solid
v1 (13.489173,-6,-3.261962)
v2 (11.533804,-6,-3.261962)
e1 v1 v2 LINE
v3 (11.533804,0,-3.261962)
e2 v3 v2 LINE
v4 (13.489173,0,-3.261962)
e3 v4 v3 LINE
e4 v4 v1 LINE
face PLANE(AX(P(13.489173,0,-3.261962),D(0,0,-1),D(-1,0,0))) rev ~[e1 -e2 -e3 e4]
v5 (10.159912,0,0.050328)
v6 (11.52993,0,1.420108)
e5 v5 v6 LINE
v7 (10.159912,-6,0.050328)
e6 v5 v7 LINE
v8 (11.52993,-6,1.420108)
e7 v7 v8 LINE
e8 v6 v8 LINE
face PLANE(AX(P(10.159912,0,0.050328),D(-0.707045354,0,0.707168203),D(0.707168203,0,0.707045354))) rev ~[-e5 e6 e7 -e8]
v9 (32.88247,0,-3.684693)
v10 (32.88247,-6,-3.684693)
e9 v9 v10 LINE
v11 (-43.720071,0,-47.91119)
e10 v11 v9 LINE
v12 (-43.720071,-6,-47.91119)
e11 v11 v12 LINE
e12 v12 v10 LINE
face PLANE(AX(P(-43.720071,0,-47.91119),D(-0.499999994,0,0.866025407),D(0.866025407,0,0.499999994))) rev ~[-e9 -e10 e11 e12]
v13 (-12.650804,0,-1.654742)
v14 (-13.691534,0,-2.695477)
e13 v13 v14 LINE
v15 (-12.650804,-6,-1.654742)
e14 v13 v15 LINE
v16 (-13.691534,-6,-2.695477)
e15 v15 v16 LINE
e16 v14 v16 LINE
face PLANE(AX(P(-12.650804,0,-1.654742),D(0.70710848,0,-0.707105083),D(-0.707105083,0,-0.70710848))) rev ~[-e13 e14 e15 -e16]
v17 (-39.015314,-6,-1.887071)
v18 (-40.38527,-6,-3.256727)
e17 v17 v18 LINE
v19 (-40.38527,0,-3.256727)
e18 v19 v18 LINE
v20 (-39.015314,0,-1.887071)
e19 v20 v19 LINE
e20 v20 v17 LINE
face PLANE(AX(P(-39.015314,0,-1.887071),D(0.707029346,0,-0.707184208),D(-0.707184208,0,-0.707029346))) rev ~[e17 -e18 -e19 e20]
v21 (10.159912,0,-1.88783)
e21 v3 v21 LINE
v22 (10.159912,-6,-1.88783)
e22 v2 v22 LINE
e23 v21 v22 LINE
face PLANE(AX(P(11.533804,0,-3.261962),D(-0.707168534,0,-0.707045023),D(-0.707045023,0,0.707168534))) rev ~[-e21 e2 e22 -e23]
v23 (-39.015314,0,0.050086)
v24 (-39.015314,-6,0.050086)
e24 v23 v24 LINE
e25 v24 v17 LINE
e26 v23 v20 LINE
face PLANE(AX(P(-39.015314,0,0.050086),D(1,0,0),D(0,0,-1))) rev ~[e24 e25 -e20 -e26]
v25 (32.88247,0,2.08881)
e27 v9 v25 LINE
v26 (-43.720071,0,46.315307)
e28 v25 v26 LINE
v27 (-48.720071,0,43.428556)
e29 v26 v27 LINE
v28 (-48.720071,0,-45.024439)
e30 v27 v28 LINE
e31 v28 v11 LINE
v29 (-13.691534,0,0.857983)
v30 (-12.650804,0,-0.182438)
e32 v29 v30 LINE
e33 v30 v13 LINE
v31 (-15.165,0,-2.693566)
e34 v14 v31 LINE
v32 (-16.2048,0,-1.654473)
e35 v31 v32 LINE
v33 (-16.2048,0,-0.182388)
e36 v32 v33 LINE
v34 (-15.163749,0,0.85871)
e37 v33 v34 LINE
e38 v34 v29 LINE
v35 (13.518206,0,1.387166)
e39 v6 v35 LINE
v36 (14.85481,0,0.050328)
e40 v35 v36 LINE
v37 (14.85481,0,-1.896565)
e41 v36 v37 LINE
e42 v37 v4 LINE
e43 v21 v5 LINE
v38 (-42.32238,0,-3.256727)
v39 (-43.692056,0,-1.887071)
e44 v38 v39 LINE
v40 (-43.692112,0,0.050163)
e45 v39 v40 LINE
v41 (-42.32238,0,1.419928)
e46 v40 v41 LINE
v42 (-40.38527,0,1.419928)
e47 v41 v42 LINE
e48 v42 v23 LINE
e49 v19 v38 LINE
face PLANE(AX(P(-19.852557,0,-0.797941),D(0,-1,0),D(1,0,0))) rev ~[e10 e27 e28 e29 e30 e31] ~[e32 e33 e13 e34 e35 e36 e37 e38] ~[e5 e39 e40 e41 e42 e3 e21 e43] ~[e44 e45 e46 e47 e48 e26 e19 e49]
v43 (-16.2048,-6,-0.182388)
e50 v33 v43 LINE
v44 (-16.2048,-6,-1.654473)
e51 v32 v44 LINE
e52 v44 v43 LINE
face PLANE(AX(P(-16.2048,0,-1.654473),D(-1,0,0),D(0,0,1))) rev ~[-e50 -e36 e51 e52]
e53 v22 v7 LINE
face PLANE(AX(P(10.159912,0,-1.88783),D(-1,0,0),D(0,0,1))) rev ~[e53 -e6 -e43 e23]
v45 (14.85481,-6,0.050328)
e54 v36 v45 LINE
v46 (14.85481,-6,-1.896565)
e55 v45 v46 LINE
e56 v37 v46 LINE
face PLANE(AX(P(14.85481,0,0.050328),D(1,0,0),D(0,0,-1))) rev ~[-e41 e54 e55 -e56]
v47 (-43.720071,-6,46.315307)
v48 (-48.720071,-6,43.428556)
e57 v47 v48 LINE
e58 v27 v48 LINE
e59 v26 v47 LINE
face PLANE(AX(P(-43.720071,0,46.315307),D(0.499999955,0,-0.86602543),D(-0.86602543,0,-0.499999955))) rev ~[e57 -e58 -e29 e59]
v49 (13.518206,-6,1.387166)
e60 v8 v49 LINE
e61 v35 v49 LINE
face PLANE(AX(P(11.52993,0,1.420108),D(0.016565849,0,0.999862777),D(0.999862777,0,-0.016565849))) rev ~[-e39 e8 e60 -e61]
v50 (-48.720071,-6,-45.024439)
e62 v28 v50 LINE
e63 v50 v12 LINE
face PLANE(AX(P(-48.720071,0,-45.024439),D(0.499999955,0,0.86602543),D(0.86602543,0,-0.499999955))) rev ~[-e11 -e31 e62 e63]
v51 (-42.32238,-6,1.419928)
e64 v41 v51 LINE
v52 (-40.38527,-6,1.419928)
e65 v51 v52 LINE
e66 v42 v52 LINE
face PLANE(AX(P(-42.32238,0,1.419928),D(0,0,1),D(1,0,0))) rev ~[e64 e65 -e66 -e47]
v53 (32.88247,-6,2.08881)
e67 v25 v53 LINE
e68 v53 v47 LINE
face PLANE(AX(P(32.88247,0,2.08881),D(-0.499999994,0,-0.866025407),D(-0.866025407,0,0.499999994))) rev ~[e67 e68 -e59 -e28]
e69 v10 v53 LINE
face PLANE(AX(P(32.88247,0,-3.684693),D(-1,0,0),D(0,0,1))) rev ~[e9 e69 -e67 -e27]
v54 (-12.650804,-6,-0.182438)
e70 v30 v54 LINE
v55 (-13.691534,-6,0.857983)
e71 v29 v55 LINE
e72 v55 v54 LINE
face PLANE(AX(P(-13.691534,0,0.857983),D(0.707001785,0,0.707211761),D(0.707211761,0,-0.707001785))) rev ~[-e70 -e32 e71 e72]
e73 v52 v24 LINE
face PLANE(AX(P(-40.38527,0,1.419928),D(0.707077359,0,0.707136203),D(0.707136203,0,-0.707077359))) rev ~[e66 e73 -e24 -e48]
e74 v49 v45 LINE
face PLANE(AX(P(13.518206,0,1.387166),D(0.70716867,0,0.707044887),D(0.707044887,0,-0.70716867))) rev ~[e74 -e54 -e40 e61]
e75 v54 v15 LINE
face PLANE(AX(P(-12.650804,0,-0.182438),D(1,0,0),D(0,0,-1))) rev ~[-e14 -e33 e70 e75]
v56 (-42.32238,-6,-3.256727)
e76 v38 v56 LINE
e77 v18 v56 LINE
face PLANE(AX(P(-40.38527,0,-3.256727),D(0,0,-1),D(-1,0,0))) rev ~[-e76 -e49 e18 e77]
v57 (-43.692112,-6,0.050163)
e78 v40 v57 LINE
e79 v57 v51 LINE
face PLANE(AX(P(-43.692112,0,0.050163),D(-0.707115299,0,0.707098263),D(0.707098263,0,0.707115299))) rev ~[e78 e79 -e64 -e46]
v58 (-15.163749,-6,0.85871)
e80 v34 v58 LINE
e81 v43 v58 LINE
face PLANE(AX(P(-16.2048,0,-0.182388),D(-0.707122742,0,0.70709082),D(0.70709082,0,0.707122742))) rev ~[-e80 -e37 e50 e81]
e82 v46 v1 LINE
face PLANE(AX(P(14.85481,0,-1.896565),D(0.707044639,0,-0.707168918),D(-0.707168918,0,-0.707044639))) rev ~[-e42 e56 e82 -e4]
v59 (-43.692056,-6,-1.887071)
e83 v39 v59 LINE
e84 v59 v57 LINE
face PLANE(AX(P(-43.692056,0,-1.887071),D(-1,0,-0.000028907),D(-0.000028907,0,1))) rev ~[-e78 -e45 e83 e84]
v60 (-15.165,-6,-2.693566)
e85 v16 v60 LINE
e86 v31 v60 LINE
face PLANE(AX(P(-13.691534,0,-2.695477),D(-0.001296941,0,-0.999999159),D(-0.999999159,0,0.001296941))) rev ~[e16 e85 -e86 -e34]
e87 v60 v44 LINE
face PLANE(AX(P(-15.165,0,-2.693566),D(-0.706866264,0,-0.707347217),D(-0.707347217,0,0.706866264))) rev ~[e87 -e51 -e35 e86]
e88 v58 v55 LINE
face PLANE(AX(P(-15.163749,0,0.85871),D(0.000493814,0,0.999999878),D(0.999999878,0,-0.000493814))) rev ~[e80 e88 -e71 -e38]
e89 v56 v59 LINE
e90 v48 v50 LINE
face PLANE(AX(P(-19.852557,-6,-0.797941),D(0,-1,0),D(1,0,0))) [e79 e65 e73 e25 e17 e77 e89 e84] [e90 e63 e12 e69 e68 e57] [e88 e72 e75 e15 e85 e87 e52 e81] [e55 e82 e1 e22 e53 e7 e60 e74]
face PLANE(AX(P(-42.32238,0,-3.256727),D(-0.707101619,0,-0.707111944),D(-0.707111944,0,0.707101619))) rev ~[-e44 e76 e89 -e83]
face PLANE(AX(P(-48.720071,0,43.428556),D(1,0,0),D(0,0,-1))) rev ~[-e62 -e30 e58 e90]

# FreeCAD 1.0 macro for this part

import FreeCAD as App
import Part
import Sketcher

V = App.Vector


def add_polygon(sketch, points):
    """Adds a closed chain of lines whose ends are joined by coincident constraints."""
    first, n = sketch.GeometryCount, len(points)
    for a, b in zip(points, points[1:] + points[:1]):
        sketch.addGeometry(Part.LineSegment(App.Vector(*a, 0), App.Vector(*b, 0)), False)
    for i in range(n):
        sketch.addConstraint(Sketcher.Constraint("Coincident", first + i, 2, first + (i + 1) % n, 1))

doc = App.newDocument("Part")
body = doc.addObject("PartDesign::Body", "Body")

# Sketch on XZ plane
sketch1 = body.newObject("Sketcher::SketchObject", "Sketch")
sketch1.AttachmentSupport = (doc.getObject("XZ_Plane"), [""])
sketch1.MapMode = "FlatFace"
add_polygon(sketch1, [(-48.720071, -45.024439), (-43.720071, -47.91119), (32.88247, -3.684693), (32.88247, 2.08881), (-43.720071, 46.315307), (-48.720071, 43.428556)])  # lines 0-5
add_polygon(sketch1, [(-42.32238, -3.256727), (-43.692056, -1.887071), (-43.692112, 0.050163), (-42.32238, 1.419928), (-40.38527, 1.419928), (-39.015314, 0.050086), (-39.015314, -1.887071), (-40.38527, -3.256727)])  # lines 6-13
add_polygon(sketch1, [(-15.165, -2.693566), (-16.2048, -1.654473), (-16.2048, -0.182388), (-15.163749, 0.85871), (-13.691534, 0.857983), (-12.650804, -0.182438), (-12.650804, -1.654742), (-13.691534, -2.695477)])  # lines 14-21
add_polygon(sketch1, [(10.159912, -1.88783), (10.159912, 0.050328), (11.52993, 1.420108), (13.518206, 1.387166), (14.85481, 0.050328), (14.85481, -1.896565), (13.489173, -3.261962), (11.533804, -3.261962)])  # lines 22-29
sketch1.addConstraint(Sketcher.Constraint("Vertical", 2))
sketch1.addConstraint(Sketcher.Constraint("Vertical", 5))
sketch1.addConstraint(Sketcher.Constraint("Horizontal", 9))
sketch1.addConstraint(Sketcher.Constraint("Vertical", 11))
sketch1.addConstraint(Sketcher.Constraint("Horizontal", 13))
sketch1.addConstraint(Sketcher.Constraint("Vertical", 15))
sketch1.addConstraint(Sketcher.Constraint("Vertical", 19))
sketch1.addConstraint(Sketcher.Constraint("Vertical", 22))
sketch1.addConstraint(Sketcher.Constraint("Vertical", 26))
sketch1.addConstraint(Sketcher.Constraint("Horizontal", 28))
sketch1.addConstraint(Sketcher.Constraint("DistanceY", 0, 2, 2, 2, 50.0))
sketch1.addConstraint(Sketcher.Constraint("DistanceY", 1, 2, 3, 2, 50.0))
sketch1.addConstraint(Sketcher.Constraint("DistanceX", 4, 2, 3, 2, 5.0))
sketch1.addConstraint(Sketcher.Constraint("DistanceX", 4, 2, 0, 2, 5.0))
sketch1.addConstraint(Sketcher.Constraint("Distance", 14, 1.469999))
sketch1.addConstraint(Sketcher.Constraint("Distance", 6, 1.937))
sketch1.addConstraint(Sketcher.Constraint("DistanceX", 21, 2, -1, 1, 15.165))
sketch1.addConstraint(Sketcher.Constraint("DistanceY", 6, 2, 8, 2, 3.306999))
sketch1.addConstraint(Sketcher.Constraint("DistanceY", 11, 2, 9, 2, 3.306999))
sketch1.addConstraint(Sketcher.Constraint("Distance", 12, 1.937198))
sketch1.addConstraint(Sketcher.Constraint("Distance", 16, 1.472302))
sketch1.addConstraint(Sketcher.Constraint("DistanceX", 9, 1, 9, 2, 1.93711))
sketch1.addConstraint(Sketcher.Constraint("DistanceX", 13, 2, 13, 1, 1.93711))
sketch1.addConstraint(Sketcher.Constraint("DistanceX", 28, 2, 28, 1, 1.955369))
sketch1.addConstraint(Sketcher.Constraint("DistanceX", 14, 2, -1, 1, 16.2048))
sketch1.addConstraint(Sketcher.Constraint("DistanceX", 4, 2, 9, 2, 8.334801))
sketch1.addConstraint(Sketcher.Constraint("DistanceX", 7, 2, 10, 2, 4.676798))
sketch1.addConstraint(Sketcher.Constraint("DistanceY", 14, 2, 9, 2, 3.074401))
sketch1.addConstraint(Sketcher.Constraint("DistanceY", 1, 2, 23, 2, 5.104801))
sketch1.addConstraint(Sketcher.Constraint("DistanceX", 22, 2, 25, 2, 4.694898))
sketch1.addConstraint(Sketcher.Constraint("Distance", 10, 1.93733))
sketch1.addConstraint(Sketcher.Constraint("Distance", 20, 1.471818))
sketch1.addConstraint(Sketcher.Constraint("Distance", 23, 1.93733))
sketch1.addConstraint(Sketcher.Constraint("Distance", 24, 1.988549))
sketch1.addConstraint(Sketcher.Constraint("Distance", 25, 1.890409))
sketch1.addConstraint(Sketcher.Constraint("DistanceY", 2, 1, 2, 2, 5.773503))
sketch1.addConstraint(Sketcher.Constraint("DistanceY", 5, 2, 5, 1, 88.452995))
sketch1.addConstraint(Sketcher.Constraint("DistanceY", 11, 2, 11, 1, 1.937157))
sketch1.addConstraint(Sketcher.Constraint("DistanceY", 15, 1, 15, 2, 1.472085))
sketch1.addConstraint(Sketcher.Constraint("DistanceY", 19, 2, 19, 1, 1.472304))
sketch1.addConstraint(Sketcher.Constraint("DistanceY", 22, 1, 22, 2, 1.938158))
sketch1.addConstraint(Sketcher.Constraint("DistanceY", 26, 2, 26, 1, 1.946893))
sketch1.addConstraint(Sketcher.Constraint("DistanceX", 0, 2, -1, 1, 43.720071))
sketch1.addConstraint(Sketcher.Constraint("DistanceY", 0, 2, -1, 1, 47.91119))
sketch1.addConstraint(Sketcher.Constraint("DistanceX", -1, 1, 1, 2, 32.88247))
sketch1.addConstraint(Sketcher.Constraint("DistanceY", 5, 2, -1, 1, 45.024439))
sketch1.addConstraint(Sketcher.Constraint("DistanceY", 6, 2, -1, 1, 1.887071))
sketch1.addConstraint(Sketcher.Constraint("DistanceX", 12, 2, -1, 1, 40.38527))
sketch1.addConstraint(Sketcher.Constraint("DistanceX", 16, 2, -1, 1, 15.163749))
sketch1.addConstraint(Sketcher.Constraint("DistanceY", 19, 2, -1, 1, 1.654742))
sketch1.addConstraint(Sketcher.Constraint("DistanceX", -1, 1, 23, 2, 11.52993))
sketch1.addConstraint(Sketcher.Constraint("DistanceX", -1, 1, 25, 2, 14.85481))
sketch1.addConstraint(Sketcher.Constraint("DistanceY", 27, 2, -1, 1, 3.261962))
sketch1.addConstraint(Sketcher.Constraint("DistanceY", 12, 2, 7, 2, 3.30689))
sketch1.addConstraint(Sketcher.Constraint("DistanceY", 15, 2, 17, 2, 1.040371))
sketch1.addConstraint(Sketcher.Constraint("DistanceX", 10, 2, 17, 2, 25.32378))
sketch1.addConstraint(Sketcher.Constraint("DistanceX", 17, 2, 18, 2, 1.04073))
sketch1.addConstraint(Sketcher.Constraint("DistanceX", 20, 2, 19, 2, 1.04073))
sketch1.addConstraint(Sketcher.Constraint("DistanceY", 1, 2, 24, 2, 5.071859))
sketch1.addConstraint(Sketcher.Constraint("DistanceX", 22, 2, 27, 2, 3.329261))
pad1 = body.newObject("PartDesign::Pad", "Pad")
pad1.Profile = sketch1
pad1.Length = 6

doc.recompute()
